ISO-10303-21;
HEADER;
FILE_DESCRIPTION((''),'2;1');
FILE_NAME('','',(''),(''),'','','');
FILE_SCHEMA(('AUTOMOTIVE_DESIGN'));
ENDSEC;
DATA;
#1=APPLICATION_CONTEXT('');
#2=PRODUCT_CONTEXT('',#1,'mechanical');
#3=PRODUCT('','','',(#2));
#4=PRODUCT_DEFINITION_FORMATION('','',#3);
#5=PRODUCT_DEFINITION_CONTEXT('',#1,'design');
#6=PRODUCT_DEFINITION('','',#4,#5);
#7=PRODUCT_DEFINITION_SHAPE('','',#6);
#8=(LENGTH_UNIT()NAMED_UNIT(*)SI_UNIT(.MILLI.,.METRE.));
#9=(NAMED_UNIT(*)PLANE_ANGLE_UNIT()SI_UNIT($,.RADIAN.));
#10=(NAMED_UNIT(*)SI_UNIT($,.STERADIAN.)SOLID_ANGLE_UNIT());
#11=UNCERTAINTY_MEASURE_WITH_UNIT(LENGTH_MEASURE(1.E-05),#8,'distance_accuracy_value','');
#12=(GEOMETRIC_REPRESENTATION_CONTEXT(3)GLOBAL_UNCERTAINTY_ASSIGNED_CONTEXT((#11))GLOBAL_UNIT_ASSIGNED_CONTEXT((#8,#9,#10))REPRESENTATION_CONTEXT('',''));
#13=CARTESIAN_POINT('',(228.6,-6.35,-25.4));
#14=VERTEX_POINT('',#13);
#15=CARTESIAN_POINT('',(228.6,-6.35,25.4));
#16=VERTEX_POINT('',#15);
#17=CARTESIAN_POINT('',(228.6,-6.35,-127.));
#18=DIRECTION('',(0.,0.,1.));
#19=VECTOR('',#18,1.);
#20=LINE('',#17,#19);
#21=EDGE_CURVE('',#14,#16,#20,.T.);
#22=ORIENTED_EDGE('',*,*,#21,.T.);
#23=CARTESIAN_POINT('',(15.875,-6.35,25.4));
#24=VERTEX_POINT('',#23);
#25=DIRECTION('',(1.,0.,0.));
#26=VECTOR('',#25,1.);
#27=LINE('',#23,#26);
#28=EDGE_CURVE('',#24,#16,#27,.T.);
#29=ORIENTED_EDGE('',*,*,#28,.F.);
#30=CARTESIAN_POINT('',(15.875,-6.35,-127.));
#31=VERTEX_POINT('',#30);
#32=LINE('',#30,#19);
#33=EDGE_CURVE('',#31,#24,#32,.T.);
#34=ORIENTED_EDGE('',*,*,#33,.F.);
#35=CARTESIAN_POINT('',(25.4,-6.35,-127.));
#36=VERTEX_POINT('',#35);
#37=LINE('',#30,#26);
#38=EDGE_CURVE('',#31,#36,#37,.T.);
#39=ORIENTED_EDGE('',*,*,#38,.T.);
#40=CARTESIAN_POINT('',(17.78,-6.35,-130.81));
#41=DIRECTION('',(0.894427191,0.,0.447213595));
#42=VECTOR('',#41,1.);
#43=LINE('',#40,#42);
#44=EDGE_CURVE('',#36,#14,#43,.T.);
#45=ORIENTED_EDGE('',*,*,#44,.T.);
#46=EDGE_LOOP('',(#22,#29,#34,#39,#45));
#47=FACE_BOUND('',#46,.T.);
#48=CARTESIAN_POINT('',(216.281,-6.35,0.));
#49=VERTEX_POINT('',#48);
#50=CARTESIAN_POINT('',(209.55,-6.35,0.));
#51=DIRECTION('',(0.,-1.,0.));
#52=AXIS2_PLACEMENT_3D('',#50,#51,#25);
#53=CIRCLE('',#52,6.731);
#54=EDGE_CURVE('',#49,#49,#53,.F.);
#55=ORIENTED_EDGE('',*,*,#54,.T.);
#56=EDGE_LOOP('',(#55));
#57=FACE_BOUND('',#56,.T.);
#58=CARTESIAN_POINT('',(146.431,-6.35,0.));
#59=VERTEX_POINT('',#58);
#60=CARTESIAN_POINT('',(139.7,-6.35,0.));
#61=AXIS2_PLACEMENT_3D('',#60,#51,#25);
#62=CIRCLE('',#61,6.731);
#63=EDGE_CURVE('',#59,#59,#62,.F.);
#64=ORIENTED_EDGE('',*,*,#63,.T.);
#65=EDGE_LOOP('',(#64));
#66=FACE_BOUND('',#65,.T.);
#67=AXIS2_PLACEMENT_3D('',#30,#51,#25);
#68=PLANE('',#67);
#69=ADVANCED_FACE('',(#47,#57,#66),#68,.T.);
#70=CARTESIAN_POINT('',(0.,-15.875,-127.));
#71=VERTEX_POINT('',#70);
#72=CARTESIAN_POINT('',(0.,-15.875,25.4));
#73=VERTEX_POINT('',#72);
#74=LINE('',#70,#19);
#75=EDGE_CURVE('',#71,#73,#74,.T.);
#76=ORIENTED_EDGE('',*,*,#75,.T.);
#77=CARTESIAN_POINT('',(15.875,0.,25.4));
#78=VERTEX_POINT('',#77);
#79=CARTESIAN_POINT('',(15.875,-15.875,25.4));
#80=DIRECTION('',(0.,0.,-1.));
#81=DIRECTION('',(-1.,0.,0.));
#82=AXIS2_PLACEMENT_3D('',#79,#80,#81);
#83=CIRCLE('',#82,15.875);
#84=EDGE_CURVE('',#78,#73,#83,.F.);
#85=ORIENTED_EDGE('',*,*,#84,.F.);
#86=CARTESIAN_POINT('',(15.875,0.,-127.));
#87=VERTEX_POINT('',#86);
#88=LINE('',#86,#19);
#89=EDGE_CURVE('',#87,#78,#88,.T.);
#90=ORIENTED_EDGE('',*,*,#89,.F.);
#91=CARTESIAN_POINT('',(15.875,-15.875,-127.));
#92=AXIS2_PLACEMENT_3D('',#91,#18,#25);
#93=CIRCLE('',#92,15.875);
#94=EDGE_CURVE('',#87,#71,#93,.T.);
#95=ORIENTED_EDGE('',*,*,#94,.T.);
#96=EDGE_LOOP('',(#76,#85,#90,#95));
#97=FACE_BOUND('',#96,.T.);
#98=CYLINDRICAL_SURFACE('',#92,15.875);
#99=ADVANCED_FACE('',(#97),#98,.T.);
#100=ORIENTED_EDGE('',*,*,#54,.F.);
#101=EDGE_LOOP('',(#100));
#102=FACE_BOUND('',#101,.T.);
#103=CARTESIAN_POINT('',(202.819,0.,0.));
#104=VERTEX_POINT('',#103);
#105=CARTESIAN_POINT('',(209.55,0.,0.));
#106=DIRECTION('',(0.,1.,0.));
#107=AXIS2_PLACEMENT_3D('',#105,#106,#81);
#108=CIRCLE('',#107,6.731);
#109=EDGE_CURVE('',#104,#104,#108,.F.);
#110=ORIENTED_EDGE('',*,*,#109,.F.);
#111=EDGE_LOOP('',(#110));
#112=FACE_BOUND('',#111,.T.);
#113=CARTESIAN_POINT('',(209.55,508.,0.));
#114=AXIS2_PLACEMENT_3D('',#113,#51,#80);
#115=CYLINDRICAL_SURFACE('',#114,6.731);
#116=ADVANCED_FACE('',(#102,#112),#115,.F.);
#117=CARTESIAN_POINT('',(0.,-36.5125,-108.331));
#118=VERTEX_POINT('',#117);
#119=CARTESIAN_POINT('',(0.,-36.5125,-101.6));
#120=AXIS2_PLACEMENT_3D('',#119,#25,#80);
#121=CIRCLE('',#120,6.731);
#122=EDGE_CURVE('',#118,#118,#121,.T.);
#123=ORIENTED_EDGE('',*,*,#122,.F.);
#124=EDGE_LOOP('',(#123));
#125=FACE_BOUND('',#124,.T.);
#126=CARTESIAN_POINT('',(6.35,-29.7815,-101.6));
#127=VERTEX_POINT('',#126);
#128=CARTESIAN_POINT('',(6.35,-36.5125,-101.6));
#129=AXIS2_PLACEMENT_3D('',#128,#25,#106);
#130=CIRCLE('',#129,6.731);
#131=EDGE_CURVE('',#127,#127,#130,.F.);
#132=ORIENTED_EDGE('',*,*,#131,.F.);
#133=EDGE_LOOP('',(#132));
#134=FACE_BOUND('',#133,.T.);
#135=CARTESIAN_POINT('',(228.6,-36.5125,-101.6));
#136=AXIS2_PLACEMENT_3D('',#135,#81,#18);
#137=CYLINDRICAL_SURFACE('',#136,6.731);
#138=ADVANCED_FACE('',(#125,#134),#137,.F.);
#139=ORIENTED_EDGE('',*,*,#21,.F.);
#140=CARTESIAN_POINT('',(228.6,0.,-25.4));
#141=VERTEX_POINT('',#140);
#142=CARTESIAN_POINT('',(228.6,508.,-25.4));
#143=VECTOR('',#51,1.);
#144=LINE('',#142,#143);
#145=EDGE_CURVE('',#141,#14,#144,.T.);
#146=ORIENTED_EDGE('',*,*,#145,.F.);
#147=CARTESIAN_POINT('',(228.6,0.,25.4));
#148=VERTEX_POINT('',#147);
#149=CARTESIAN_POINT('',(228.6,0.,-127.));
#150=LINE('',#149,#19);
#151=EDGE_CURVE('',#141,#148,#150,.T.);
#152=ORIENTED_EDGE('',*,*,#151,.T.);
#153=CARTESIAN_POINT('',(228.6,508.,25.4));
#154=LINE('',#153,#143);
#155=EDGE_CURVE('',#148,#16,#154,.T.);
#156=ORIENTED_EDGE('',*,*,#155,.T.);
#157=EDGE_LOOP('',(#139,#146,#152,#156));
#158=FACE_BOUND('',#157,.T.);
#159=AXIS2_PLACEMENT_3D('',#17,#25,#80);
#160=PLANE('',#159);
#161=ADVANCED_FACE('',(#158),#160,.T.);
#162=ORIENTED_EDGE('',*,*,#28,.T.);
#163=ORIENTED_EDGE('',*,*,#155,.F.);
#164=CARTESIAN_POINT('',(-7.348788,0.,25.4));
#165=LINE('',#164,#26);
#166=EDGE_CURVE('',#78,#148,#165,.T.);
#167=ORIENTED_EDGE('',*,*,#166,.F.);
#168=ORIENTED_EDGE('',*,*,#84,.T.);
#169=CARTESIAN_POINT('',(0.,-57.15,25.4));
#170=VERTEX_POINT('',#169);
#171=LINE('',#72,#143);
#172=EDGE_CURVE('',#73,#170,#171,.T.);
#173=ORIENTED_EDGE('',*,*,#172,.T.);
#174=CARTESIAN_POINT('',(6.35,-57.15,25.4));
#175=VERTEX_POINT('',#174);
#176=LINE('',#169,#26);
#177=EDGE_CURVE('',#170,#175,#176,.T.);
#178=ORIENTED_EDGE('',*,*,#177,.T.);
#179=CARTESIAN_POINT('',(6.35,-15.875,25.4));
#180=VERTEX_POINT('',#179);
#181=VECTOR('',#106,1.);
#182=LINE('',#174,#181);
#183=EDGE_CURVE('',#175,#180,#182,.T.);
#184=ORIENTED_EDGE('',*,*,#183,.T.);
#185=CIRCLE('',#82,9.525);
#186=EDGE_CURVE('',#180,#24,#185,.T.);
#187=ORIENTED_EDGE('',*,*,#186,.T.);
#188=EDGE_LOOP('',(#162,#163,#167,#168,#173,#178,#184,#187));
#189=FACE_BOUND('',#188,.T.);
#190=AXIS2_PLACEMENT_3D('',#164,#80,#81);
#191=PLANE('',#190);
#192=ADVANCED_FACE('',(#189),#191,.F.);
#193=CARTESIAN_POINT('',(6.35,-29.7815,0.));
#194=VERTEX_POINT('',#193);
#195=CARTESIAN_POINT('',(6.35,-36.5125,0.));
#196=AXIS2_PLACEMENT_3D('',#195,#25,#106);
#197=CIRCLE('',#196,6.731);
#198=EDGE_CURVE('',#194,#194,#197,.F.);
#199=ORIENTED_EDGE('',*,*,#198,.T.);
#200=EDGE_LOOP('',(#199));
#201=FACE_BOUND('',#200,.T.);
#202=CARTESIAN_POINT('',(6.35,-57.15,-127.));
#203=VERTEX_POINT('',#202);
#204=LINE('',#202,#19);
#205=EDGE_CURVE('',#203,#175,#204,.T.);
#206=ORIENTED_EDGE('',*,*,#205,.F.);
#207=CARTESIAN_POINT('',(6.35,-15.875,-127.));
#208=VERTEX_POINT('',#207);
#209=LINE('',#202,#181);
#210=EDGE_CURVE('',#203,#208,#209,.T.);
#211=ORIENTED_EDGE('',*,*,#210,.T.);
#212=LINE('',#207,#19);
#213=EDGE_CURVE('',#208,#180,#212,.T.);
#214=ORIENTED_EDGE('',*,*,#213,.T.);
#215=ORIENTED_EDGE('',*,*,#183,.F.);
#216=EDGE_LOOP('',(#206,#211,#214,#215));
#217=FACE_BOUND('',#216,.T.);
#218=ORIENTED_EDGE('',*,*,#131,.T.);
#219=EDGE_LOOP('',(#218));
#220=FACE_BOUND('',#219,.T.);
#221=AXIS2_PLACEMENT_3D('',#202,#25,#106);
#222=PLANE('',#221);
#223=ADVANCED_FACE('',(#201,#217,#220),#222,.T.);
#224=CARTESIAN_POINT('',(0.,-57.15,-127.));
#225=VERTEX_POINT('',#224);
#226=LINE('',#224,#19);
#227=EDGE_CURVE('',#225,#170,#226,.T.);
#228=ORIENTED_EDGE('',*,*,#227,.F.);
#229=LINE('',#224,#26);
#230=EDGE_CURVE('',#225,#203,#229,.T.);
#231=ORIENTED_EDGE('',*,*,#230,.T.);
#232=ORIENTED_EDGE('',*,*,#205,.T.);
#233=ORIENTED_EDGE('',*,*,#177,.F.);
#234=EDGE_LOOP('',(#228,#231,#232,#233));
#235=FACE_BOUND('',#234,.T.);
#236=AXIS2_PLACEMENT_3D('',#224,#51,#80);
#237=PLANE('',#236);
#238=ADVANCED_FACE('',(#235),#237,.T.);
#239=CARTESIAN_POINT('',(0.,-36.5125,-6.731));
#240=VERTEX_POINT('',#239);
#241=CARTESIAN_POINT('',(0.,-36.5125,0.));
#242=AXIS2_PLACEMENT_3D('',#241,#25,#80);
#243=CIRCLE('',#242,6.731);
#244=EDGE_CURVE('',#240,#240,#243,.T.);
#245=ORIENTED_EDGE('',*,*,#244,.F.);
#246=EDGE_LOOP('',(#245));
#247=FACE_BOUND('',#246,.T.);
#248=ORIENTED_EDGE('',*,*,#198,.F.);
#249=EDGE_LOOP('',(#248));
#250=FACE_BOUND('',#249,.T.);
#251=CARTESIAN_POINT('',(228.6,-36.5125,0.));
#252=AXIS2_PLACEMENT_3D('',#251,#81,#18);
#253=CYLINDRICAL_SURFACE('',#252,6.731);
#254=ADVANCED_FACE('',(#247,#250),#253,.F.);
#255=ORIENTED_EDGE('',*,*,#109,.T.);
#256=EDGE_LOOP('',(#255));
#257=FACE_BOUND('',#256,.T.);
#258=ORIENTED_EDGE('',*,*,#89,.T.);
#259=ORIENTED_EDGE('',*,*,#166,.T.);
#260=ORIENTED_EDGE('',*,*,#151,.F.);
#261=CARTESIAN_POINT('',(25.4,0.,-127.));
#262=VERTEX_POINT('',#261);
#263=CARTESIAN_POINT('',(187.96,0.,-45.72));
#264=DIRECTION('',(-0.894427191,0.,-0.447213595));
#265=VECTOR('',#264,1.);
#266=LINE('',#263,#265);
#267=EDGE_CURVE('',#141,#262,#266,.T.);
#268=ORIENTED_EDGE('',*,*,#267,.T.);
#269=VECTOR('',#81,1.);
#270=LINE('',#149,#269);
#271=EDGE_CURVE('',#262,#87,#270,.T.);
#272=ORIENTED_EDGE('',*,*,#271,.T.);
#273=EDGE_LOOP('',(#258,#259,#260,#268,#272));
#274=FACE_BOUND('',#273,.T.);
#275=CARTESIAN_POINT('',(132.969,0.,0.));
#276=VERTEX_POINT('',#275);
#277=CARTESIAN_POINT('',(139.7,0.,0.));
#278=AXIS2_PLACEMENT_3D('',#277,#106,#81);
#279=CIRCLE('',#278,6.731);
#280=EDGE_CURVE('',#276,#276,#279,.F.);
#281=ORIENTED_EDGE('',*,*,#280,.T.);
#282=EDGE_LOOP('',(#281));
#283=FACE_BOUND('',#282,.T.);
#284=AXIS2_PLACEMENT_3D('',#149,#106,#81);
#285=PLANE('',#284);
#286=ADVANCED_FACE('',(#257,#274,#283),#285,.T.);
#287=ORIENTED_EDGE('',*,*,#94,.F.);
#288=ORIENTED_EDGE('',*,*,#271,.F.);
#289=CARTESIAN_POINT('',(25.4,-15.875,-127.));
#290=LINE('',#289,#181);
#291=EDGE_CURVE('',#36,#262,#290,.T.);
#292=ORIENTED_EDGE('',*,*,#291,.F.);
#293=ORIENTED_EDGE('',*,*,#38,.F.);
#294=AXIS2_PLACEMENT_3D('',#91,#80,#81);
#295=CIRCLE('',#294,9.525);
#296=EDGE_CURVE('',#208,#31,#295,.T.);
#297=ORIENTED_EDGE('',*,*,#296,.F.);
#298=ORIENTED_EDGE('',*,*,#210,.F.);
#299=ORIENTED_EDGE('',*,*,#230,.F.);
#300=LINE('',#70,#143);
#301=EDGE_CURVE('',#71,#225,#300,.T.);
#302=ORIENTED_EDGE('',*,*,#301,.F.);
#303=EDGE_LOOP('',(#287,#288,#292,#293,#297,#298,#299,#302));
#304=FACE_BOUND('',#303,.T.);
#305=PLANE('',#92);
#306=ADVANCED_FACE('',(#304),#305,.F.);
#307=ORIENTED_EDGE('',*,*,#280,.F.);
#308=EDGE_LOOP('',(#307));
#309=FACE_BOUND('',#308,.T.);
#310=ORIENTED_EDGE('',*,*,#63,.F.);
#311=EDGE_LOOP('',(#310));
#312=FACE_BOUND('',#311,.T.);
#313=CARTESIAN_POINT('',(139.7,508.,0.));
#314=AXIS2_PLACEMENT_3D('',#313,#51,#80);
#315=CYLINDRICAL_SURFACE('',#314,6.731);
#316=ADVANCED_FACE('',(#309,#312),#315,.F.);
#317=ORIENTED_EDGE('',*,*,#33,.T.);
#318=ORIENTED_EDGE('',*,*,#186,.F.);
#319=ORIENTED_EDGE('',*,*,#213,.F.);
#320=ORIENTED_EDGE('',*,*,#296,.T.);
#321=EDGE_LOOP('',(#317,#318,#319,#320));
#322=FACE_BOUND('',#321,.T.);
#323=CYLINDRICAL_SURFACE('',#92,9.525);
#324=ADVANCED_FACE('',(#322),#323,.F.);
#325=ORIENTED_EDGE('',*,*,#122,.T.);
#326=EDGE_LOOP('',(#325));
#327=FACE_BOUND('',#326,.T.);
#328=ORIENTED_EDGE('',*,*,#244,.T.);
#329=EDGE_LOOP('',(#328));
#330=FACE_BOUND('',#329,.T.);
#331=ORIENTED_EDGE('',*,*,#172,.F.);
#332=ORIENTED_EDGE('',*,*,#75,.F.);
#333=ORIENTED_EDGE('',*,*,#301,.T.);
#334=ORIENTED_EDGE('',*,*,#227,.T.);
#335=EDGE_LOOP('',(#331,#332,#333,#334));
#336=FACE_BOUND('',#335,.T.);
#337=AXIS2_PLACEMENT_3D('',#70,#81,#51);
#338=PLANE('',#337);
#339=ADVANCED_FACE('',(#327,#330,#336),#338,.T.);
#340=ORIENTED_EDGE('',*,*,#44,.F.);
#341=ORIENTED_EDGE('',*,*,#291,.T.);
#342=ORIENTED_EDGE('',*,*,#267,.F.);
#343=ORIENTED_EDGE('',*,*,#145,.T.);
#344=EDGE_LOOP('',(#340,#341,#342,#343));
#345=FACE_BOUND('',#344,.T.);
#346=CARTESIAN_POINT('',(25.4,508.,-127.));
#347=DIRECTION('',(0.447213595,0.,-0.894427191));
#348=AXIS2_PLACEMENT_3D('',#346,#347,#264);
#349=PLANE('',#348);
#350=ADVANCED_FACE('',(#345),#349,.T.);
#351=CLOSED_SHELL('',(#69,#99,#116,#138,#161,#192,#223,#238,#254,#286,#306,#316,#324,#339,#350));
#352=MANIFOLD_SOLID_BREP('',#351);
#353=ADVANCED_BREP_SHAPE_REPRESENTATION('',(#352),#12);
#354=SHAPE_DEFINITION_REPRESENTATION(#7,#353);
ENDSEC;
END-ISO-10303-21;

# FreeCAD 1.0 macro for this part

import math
import FreeCAD as App
import Part
import Sketcher

V = App.Vector
Q = App.Units.Quantity


def add_polygon(sketch, points):
    """Adds a closed chain of lines whose ends are joined by coincident constraints."""
    first, n = sketch.GeometryCount, len(points)
    for a, b in zip(points, points[1:] + points[:1]):
        sketch.addGeometry(Part.LineSegment(App.Vector(*a, 0), App.Vector(*b, 0)), False)
    for i in range(n):
        sketch.addConstraint(Sketcher.Constraint("Coincident", first + i, 2, first + (i + 1) % n, 1))

doc = App.newDocument("Part")
body = doc.addObject("PartDesign::Body", "Body")

# Sketch on XY plane
sketch1 = body.newObject("Sketcher::SketchObject", "Sketch")
sketch1.AttachmentSupport = (doc.getObject("XY_Plane"), [""])
sketch1.MapMode = "FlatFace"
sketch1.addGeometry([
    Part.LineSegment(V(229, 0, 0), V(16, 0, 0)),  # 0
    Part.ArcOfCircle(Part.Circle(V(16, -16, 0), V(0, 0, 1), 16), math.radians(90), math.radians(180)),  # 1
    Part.LineSegment(V(0, -16, 0), V(0, -57, 0)),  # 2
    Part.LineSegment(V(0, -57, 0), V(6, -57, 0)),  # 3
    Part.LineSegment(V(6, -57, 0), V(6, -16, 0)),  # 4
    Part.ArcOfCircle(Part.Circle(V(16, -16, 0), V(0, 0, 1), 10), math.radians(90), math.radians(180)),  # 5
    Part.LineSegment(V(16, -6, 0), V(229, -6, 0)),  # 6
    Part.LineSegment(V(229, -6, 0), V(229, 0, 0)),  # 7
], False)
sketch1.addConstraint([
    Sketcher.Constraint("Tangent", 0, 2, 1, 1),
    Sketcher.Constraint("Tangent", 1, 2, 2, 1),
    Sketcher.Constraint("Coincident", 2, 2, 3, 1),
    Sketcher.Constraint("Coincident", 3, 2, 4, 1),
    Sketcher.Constraint("Tangent", 4, 2, 5, 2),
    Sketcher.Constraint("Tangent", 5, 1, 6, 1),
    Sketcher.Constraint("Coincident", 6, 2, 7, 1),
    Sketcher.Constraint("Coincident", 7, 2, 0, 1),
    Sketcher.Constraint("Horizontal", 0),
    Sketcher.Constraint("Vertical", 2),
    Sketcher.Constraint("Horizontal", 3),
    Sketcher.Constraint("Vertical", 4),
    Sketcher.Constraint("Horizontal", 6),
    Sketcher.Constraint("Vertical", 7),
    Sketcher.Constraint("Coincident", 5, 3, 1, 3),
    Sketcher.Constraint("PointOnObject", 0, 2, -1),
    Sketcher.Constraint("PointOnObject", 1, 2, -2),
    Sketcher.Constraint("DistanceX", -1, 1, 6, 2, Q("9 in")),
    Sketcher.Constraint("Radius", 1, Q("0.625 in")),
    Sketcher.Constraint("Radius", 5, Q("0.375 in")),
    Sketcher.Constraint("DistanceY", 2, 2, 2, 1, Q("1.625 in")),
])
pad1 = body.newObject("PartDesign::Pad", "Pad")
pad1.Profile = sketch1
pad1.Length = Q("10 in")
pad1.Midplane = True

# Sketch on XZ plane
sketch2 = body.newObject("Sketcher::SketchObject", "Sketch001")
sketch2.AttachmentSupport = (doc.getObject("XZ_Plane"), [""])
sketch2.MapMode = "FlatFace"
sketch2.addGeometry(Part.Circle(V(210, 0, 0), V(0, 0, 1), 7), False)  # 0
sketch2.addGeometry(Part.Circle(V(140, 0, 0), V(0, 0, 1), 7), False)  # 1
add_polygon(sketch2, [(25, -127), (229, -25), (229, -127)])  # lines 2-4
add_polygon(sketch2, [(229, 25), (25, 127), (229, 127)])  # lines 5-7
sketch2.addConstraint([
    Sketcher.Constraint("Vertical", 3),
    Sketcher.Constraint("Horizontal", 4),
    Sketcher.Constraint("Horizontal", 6),
    Sketcher.Constraint("Vertical", 7),
    Sketcher.Constraint("Equal", 0, 1),
    Sketcher.Constraint("Symmetric", 4, 2, 5, 2, -1),
    Sketcher.Constraint("Symmetric", 2, 2, 7, 2, -1),
    Sketcher.Constraint("PointOnObject", 0, 3, -1),
    Sketcher.Constraint("PointOnObject", 1, 3, -1),
    Sketcher.Constraint("Diameter", 0, Q("0.53 in")),
    Sketcher.Constraint("DistanceX", 4, 2, 4, 1, Q("8 in")),
    Sketcher.Constraint("DistanceY", 3, 2, 3, 1, Q("4 in")),
    Sketcher.Constraint("DistanceX", -1, 1, 2, 2, Q("9 in")),
    Sketcher.Constraint("DistanceY", 2, 2, -1, 1, Q("1 in")),
    Sketcher.Constraint("DistanceX", -1, 1, 1, 3, Q("5.5 in")),
    Sketcher.Constraint("DistanceX", -1, 1, 0, 3, Q("8.25 in")),
])
pocket1 = body.newObject("PartDesign::Pocket", "Pocket")
pocket1.Profile = sketch2
pocket1.Type = "ThroughAll"
pocket1.Midplane = True

# Sketch on YZ plane
sketch3 = body.newObject("Sketcher::SketchObject", "Sketch002")
sketch3.AttachmentSupport = (doc.getObject("YZ_Plane"), [""])
sketch3.MapMode = "FlatFace"
sketch3.addGeometry([
    Part.Circle(V(-37, 0, 0), V(0, 0, 1), 7),  # 0
    Part.Circle(V(-37, -102, 0), V(0, 0, 1), 7),  # 1
    Part.Circle(V(-151, 0, 0), V(0, 0, 1), 7),  # 2
    Part.Circle(V(-151, -102, 0), V(0, 0, 1), 7),  # 3
    Part.Circle(V(-37, 102, 0), V(0, 0, 1), 7),  # 4
    Part.Circle(V(-151, 102, 0), V(0, 0, 1), 7),  # 5
], False)
sketch3.addConstraint([
    Sketcher.Constraint("Equal", 0, 1),
    Sketcher.Constraint("Equal", 1, 2),
    Sketcher.Constraint("Equal", 2, 3),
    Sketcher.Constraint("Equal", 3, 4),
    Sketcher.Constraint("Equal", 4, 5),
    Sketcher.Constraint("Symmetric", 1, 3, 4, 3, -1),
    Sketcher.Constraint("Symmetric", 3, 3, 5, 3, -1),
    Sketcher.Constraint("PointOnObject", 0, 3, -1),
    Sketcher.Constraint("PointOnObject", 2, 3, -1),
    Sketcher.Constraint("Horizontal", 1, 3, 3, 3),
    Sketcher.Constraint("Vertical", 0, 3, 1, 3),
    Sketcher.Constraint("Vertical", 2, 3, 3, 3),
    Sketcher.Constraint("Diameter", 0, Q("0.53 in")),
    Sketcher.Constraint("DistanceY", 1, 3, -1, 1, Q("4 in")),
    Sketcher.Constraint("DistanceX", 2, 3, 0, 3, Q("4.5 in")),
    Sketcher.Constraint("DistanceX", 0, 3, -1, 1, Q("1.4375 in")),
])
pocket2 = body.newObject("PartDesign::Pocket", "Pocket001")
pocket2.Profile = sketch3
pocket2.Type = "ThroughAll"
pocket2.Reversed = True

# Sketch on XZ plane
sketch4 = body.newObject("Sketcher::SketchObject", "Sketch003")
sketch4.AttachmentSupport = (doc.getObject("XZ_Plane"), [""])
sketch4.MapMode = "FlatFace"
add_polygon(sketch4, [(800, 25), (-579, 25), (-579, 1169), (800, 1169)])  # lines 0-3
sketch4.addConstraint([
    Sketcher.Constraint("Horizontal", 0),
    Sketcher.Constraint("Vertical", 1),
    Sketcher.Constraint("Horizontal", 2),
    Sketcher.Constraint("Vertical", 3),
    Sketcher.Constraint("DistanceY", -1, 1, 0, 2, Q("1 in")),
    Sketcher.Constraint("DistanceY", 1, 1, 1, 2, Q("1143.548598 mm")),
    Sketcher.Constraint("DistanceX", -1, 1, 2, 2, Q("800.374299 mm")),
    Sketcher.Constraint("DistanceX", 0, 2, 0, 1, Q("1379.497387 mm")),
])
pocket3 = body.newObject("PartDesign::Pocket", "Pocket002")
pocket3.Profile = sketch4
pocket3.Type = "ThroughAll"
pocket3.Reversed = True

doc.recompute()
